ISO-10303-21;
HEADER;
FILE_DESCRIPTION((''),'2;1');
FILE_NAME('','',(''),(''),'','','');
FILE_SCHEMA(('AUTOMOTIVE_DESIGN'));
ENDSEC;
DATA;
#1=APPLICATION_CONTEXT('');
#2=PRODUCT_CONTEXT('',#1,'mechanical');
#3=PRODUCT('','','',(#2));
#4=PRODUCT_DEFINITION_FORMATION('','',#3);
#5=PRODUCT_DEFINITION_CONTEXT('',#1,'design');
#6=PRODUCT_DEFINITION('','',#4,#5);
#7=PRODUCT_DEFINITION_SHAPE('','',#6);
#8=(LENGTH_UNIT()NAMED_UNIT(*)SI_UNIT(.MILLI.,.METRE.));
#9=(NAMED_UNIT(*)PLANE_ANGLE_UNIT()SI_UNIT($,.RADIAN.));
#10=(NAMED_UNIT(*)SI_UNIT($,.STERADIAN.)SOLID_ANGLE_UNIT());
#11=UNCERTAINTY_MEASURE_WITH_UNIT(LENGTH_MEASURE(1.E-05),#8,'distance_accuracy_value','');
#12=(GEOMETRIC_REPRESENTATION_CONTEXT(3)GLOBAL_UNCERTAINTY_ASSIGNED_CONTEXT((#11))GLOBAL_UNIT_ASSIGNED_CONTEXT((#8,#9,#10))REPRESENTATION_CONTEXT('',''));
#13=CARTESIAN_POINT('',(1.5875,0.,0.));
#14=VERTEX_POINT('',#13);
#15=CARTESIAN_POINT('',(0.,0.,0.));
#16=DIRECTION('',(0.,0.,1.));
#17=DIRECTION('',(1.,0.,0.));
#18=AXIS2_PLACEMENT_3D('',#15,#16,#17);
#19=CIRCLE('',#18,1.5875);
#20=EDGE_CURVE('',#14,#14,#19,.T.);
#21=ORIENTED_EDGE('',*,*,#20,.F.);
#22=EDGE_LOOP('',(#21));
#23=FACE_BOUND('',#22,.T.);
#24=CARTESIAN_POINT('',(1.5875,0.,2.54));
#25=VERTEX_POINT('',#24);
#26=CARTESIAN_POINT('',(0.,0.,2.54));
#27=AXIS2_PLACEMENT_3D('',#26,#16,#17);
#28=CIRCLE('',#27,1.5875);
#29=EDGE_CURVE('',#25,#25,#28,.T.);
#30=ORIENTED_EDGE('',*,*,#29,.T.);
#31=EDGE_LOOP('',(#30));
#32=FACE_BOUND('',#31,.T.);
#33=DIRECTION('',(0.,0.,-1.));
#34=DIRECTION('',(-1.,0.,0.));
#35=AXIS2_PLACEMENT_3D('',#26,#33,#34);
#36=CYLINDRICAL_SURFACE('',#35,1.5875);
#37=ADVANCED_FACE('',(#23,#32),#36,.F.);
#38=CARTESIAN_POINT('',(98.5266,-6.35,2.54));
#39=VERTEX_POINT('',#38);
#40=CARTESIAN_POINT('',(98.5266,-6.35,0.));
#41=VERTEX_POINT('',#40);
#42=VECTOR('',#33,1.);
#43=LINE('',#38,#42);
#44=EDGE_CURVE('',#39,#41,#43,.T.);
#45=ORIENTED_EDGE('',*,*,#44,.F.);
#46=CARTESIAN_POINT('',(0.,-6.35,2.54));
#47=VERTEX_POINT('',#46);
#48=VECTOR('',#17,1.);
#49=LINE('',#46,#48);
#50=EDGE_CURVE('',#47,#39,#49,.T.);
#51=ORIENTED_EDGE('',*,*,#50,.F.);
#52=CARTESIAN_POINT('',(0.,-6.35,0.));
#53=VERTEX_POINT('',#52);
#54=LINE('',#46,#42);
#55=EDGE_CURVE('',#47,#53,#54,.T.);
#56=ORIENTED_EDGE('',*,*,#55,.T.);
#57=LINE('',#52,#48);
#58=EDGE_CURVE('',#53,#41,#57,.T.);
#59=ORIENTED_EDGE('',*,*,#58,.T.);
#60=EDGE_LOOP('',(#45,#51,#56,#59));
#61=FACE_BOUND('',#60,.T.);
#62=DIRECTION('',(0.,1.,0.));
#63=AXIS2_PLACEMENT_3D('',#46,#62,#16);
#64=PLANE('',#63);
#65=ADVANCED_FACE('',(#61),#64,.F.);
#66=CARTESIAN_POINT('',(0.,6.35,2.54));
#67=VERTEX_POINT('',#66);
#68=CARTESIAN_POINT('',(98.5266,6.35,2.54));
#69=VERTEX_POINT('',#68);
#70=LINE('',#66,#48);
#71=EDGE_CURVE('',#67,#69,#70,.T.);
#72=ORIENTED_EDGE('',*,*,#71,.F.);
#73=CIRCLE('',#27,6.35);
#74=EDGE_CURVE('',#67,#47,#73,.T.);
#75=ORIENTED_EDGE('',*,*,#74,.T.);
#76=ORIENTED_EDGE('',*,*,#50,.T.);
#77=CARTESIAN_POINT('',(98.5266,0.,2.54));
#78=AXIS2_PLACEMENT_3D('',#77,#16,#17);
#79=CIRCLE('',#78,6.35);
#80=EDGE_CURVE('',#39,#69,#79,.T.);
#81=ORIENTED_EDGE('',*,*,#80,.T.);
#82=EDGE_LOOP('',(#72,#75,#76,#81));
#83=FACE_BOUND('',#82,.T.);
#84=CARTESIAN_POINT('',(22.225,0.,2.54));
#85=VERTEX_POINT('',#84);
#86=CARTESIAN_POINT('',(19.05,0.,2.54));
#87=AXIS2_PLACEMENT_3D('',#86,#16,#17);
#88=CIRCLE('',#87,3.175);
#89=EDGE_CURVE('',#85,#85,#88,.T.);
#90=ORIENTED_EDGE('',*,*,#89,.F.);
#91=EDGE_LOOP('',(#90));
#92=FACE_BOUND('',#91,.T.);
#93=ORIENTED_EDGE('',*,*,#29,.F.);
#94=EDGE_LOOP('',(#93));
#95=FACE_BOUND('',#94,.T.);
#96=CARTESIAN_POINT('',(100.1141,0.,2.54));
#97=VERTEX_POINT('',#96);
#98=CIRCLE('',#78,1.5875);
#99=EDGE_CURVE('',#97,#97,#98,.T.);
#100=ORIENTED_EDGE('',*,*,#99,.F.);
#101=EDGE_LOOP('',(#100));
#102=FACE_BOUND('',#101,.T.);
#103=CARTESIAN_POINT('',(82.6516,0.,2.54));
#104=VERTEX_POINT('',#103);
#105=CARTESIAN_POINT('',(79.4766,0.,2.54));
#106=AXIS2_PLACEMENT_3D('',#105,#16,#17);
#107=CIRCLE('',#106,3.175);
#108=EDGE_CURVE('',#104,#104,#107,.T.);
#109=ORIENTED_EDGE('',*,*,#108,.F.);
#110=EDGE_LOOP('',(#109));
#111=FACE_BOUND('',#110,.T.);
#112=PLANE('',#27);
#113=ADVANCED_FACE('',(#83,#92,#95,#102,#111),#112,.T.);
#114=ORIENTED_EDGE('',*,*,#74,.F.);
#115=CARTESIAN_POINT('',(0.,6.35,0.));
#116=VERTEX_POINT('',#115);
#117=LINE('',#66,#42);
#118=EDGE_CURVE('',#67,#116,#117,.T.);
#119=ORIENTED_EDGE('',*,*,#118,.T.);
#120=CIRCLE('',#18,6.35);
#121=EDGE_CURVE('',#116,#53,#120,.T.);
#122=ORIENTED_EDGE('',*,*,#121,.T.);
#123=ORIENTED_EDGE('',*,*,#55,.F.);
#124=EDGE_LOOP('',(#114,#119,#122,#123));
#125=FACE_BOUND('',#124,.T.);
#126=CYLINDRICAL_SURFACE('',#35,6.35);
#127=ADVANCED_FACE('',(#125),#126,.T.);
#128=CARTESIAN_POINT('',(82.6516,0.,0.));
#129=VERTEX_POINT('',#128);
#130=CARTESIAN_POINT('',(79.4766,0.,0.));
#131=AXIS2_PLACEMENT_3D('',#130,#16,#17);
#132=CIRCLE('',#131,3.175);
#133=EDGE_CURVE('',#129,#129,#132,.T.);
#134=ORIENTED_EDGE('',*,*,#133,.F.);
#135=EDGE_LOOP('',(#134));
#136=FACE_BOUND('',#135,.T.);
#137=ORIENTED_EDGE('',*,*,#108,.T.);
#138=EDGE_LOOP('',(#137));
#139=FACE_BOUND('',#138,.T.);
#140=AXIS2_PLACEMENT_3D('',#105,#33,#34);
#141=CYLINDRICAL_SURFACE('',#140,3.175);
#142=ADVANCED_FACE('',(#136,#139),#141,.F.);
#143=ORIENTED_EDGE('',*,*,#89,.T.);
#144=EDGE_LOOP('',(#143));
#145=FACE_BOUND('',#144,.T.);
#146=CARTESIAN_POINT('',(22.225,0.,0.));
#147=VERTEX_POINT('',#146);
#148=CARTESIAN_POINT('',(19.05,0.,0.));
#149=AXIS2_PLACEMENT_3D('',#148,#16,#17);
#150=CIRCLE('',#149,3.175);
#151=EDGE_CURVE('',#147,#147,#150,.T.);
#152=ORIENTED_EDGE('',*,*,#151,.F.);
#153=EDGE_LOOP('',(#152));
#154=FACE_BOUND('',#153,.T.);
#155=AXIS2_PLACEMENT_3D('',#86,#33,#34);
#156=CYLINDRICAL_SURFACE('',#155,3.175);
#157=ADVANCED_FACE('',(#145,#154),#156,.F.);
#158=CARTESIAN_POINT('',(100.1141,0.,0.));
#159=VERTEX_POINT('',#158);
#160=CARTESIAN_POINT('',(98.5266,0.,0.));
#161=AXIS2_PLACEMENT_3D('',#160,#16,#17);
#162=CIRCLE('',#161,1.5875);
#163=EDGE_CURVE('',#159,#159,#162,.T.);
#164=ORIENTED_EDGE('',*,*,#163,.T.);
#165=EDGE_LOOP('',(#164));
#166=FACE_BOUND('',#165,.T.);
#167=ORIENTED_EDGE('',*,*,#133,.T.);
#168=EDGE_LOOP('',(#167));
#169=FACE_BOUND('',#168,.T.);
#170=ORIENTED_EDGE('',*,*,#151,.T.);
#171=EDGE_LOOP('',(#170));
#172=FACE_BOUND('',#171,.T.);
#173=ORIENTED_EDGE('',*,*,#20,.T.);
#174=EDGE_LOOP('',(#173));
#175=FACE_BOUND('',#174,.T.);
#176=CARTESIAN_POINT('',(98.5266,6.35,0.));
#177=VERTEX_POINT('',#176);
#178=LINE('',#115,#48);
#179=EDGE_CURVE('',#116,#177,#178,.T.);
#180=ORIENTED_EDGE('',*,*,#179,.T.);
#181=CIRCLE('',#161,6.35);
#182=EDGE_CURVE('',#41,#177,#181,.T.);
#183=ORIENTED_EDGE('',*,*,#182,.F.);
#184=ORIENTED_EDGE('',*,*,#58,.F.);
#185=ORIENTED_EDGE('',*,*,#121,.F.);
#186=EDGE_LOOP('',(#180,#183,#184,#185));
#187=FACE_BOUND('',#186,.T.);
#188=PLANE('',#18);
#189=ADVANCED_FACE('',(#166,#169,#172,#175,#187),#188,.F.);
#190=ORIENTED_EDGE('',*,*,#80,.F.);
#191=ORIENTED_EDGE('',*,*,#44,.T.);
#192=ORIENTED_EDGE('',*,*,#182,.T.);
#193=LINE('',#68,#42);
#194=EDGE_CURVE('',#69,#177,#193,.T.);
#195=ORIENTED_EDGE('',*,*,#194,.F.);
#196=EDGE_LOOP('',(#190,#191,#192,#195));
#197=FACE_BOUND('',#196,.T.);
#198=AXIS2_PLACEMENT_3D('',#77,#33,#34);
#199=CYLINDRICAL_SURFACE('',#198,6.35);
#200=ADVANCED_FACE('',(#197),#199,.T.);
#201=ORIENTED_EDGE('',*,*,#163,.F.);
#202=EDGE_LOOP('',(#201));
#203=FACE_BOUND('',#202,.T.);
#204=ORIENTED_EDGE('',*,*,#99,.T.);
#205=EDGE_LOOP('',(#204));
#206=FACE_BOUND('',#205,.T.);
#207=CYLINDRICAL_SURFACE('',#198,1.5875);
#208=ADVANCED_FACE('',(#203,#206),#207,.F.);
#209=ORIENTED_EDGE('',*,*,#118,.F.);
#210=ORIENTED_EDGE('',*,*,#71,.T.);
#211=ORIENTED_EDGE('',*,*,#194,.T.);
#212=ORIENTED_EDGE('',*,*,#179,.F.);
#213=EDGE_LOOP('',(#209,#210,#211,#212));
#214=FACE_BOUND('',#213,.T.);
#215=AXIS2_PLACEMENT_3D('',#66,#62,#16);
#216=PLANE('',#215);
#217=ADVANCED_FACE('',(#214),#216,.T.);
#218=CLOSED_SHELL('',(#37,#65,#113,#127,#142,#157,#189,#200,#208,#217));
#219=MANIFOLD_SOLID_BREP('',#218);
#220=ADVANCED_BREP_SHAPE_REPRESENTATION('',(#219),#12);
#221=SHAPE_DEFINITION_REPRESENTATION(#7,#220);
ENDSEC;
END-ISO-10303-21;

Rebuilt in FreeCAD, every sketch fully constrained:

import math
import FreeCAD as App
import Part
import Sketcher
from FreeCAD import Vector
Q = App.Units.Quantity

doc = App.newDocument("Part")
params = doc.addObject("Spreadsheet::Sheet", "Params")
for row, (alias, value) in enumerate([
    ("sketch1_diameter", "0.25 in"),
    ("sketch1_radius", "0.25 in"),
    ("sketch1_diameter2", "0.125 in"),
    ("sketch1_width", "3.879 in"),
    ("pad1_length", "0.1 in"),
], start=1):
    params.set(f"A{row}", alias)
    params.set(f"B{row}", "=" + value)
    params.setAlias(f"B{row}", alias)

body = doc.addObject("PartDesign::Body", "Body")

# Sketch on XY plane
sketch1 = doc.addObject("Sketcher::SketchObject", "Sketch")
body.addObject(sketch1)
sketch1.AttachmentSupport = (doc.XY_Plane, [""])
sketch1.MapMode = "FlatFace"
sketch1.addGeometry([
    Part.ArcOfCircle(Part.Circle(Vector(0, 0, 0), Vector(0, 0, 1), 6.35), math.radians(90), math.radians(270)),  # 0
    Part.LineSegment(Vector(0, -6.35, 0), Vector(98.5266, -6.35, 0)),  # 1
    Part.ArcOfCircle(Part.Circle(Vector(98.5266, 0, 0), Vector(0, 0, 1), 6.35), math.radians(-90), math.radians(90)),  # 2
    Part.LineSegment(Vector(98.5266, 6.35, 0), Vector(0, 6.35, 0)),  # 3
    Part.Circle(Vector(0, 0, 0), Vector(0, 0, 1), 1.5875),  # 4
    Part.Circle(Vector(79.4766, 0, 0), Vector(0, 0, 1), 3.175),  # 5
    Part.Circle(Vector(19.05, 0, 0), Vector(0, 0, 1), 3.175),  # 6
    Part.Circle(Vector(98.5266, 0, 0), Vector(0, 0, 1), 1.5875),  # 7
], False)
sketch1.addConstraint([
    Sketcher.Constraint("Tangent", 0, 2, 1, 1),
    Sketcher.Constraint("Tangent", 1, 2, 2, 1),
    Sketcher.Constraint("Tangent", 2, 2, 3, 1),
    Sketcher.Constraint("Tangent", 3, 2, 0, 1),
    Sketcher.Constraint("Horizontal", 1),
    Sketcher.Constraint("Horizontal", 3),
    Sketcher.Constraint("Coincident", 0, 3, -1, 1),
    Sketcher.Constraint("Coincident", 4, 3, -1, 1),
    Sketcher.Constraint("Coincident", 7, 3, 2, 3),
    Sketcher.Constraint("Equal", 5, 6),
    Sketcher.Constraint("Equal", 4, 7),
    Sketcher.Constraint("PointOnObject", 5, 3, -1),
    Sketcher.Constraint("PointOnObject", 6, 3, -1),
    Sketcher.Constraint("Diameter", 5, Q("0.25 in")),
    Sketcher.Constraint("Radius", 0, Q("0.25 in")),
    Sketcher.Constraint("Diameter", 4, Q("0.125 in")),
    Sketcher.Constraint("DistanceX", 1, 1, 1, 2, Q("3.879 in")),
    Sketcher.Constraint("DistanceX", -1, 1, 6, 3, Q("0.75 in")),
    Sketcher.Constraint("DistanceX", 5, 3, 2, 3, Q("0.75 in")),
])
sketch1.setExpression("Constraints[13]", "Params.sketch1_diameter")
sketch1.setExpression("Constraints[14]", "Params.sketch1_radius")
sketch1.setExpression("Constraints[15]", "Params.sketch1_diameter2")
sketch1.setExpression("Constraints[16]", "Params.sketch1_width")
pad1 = doc.addObject("PartDesign::Pad", "Pad")
body.addObject(pad1)
pad1.Profile = sketch1
pad1.setExpression("Length", "Params.pad1_length")

doc.recompute()
